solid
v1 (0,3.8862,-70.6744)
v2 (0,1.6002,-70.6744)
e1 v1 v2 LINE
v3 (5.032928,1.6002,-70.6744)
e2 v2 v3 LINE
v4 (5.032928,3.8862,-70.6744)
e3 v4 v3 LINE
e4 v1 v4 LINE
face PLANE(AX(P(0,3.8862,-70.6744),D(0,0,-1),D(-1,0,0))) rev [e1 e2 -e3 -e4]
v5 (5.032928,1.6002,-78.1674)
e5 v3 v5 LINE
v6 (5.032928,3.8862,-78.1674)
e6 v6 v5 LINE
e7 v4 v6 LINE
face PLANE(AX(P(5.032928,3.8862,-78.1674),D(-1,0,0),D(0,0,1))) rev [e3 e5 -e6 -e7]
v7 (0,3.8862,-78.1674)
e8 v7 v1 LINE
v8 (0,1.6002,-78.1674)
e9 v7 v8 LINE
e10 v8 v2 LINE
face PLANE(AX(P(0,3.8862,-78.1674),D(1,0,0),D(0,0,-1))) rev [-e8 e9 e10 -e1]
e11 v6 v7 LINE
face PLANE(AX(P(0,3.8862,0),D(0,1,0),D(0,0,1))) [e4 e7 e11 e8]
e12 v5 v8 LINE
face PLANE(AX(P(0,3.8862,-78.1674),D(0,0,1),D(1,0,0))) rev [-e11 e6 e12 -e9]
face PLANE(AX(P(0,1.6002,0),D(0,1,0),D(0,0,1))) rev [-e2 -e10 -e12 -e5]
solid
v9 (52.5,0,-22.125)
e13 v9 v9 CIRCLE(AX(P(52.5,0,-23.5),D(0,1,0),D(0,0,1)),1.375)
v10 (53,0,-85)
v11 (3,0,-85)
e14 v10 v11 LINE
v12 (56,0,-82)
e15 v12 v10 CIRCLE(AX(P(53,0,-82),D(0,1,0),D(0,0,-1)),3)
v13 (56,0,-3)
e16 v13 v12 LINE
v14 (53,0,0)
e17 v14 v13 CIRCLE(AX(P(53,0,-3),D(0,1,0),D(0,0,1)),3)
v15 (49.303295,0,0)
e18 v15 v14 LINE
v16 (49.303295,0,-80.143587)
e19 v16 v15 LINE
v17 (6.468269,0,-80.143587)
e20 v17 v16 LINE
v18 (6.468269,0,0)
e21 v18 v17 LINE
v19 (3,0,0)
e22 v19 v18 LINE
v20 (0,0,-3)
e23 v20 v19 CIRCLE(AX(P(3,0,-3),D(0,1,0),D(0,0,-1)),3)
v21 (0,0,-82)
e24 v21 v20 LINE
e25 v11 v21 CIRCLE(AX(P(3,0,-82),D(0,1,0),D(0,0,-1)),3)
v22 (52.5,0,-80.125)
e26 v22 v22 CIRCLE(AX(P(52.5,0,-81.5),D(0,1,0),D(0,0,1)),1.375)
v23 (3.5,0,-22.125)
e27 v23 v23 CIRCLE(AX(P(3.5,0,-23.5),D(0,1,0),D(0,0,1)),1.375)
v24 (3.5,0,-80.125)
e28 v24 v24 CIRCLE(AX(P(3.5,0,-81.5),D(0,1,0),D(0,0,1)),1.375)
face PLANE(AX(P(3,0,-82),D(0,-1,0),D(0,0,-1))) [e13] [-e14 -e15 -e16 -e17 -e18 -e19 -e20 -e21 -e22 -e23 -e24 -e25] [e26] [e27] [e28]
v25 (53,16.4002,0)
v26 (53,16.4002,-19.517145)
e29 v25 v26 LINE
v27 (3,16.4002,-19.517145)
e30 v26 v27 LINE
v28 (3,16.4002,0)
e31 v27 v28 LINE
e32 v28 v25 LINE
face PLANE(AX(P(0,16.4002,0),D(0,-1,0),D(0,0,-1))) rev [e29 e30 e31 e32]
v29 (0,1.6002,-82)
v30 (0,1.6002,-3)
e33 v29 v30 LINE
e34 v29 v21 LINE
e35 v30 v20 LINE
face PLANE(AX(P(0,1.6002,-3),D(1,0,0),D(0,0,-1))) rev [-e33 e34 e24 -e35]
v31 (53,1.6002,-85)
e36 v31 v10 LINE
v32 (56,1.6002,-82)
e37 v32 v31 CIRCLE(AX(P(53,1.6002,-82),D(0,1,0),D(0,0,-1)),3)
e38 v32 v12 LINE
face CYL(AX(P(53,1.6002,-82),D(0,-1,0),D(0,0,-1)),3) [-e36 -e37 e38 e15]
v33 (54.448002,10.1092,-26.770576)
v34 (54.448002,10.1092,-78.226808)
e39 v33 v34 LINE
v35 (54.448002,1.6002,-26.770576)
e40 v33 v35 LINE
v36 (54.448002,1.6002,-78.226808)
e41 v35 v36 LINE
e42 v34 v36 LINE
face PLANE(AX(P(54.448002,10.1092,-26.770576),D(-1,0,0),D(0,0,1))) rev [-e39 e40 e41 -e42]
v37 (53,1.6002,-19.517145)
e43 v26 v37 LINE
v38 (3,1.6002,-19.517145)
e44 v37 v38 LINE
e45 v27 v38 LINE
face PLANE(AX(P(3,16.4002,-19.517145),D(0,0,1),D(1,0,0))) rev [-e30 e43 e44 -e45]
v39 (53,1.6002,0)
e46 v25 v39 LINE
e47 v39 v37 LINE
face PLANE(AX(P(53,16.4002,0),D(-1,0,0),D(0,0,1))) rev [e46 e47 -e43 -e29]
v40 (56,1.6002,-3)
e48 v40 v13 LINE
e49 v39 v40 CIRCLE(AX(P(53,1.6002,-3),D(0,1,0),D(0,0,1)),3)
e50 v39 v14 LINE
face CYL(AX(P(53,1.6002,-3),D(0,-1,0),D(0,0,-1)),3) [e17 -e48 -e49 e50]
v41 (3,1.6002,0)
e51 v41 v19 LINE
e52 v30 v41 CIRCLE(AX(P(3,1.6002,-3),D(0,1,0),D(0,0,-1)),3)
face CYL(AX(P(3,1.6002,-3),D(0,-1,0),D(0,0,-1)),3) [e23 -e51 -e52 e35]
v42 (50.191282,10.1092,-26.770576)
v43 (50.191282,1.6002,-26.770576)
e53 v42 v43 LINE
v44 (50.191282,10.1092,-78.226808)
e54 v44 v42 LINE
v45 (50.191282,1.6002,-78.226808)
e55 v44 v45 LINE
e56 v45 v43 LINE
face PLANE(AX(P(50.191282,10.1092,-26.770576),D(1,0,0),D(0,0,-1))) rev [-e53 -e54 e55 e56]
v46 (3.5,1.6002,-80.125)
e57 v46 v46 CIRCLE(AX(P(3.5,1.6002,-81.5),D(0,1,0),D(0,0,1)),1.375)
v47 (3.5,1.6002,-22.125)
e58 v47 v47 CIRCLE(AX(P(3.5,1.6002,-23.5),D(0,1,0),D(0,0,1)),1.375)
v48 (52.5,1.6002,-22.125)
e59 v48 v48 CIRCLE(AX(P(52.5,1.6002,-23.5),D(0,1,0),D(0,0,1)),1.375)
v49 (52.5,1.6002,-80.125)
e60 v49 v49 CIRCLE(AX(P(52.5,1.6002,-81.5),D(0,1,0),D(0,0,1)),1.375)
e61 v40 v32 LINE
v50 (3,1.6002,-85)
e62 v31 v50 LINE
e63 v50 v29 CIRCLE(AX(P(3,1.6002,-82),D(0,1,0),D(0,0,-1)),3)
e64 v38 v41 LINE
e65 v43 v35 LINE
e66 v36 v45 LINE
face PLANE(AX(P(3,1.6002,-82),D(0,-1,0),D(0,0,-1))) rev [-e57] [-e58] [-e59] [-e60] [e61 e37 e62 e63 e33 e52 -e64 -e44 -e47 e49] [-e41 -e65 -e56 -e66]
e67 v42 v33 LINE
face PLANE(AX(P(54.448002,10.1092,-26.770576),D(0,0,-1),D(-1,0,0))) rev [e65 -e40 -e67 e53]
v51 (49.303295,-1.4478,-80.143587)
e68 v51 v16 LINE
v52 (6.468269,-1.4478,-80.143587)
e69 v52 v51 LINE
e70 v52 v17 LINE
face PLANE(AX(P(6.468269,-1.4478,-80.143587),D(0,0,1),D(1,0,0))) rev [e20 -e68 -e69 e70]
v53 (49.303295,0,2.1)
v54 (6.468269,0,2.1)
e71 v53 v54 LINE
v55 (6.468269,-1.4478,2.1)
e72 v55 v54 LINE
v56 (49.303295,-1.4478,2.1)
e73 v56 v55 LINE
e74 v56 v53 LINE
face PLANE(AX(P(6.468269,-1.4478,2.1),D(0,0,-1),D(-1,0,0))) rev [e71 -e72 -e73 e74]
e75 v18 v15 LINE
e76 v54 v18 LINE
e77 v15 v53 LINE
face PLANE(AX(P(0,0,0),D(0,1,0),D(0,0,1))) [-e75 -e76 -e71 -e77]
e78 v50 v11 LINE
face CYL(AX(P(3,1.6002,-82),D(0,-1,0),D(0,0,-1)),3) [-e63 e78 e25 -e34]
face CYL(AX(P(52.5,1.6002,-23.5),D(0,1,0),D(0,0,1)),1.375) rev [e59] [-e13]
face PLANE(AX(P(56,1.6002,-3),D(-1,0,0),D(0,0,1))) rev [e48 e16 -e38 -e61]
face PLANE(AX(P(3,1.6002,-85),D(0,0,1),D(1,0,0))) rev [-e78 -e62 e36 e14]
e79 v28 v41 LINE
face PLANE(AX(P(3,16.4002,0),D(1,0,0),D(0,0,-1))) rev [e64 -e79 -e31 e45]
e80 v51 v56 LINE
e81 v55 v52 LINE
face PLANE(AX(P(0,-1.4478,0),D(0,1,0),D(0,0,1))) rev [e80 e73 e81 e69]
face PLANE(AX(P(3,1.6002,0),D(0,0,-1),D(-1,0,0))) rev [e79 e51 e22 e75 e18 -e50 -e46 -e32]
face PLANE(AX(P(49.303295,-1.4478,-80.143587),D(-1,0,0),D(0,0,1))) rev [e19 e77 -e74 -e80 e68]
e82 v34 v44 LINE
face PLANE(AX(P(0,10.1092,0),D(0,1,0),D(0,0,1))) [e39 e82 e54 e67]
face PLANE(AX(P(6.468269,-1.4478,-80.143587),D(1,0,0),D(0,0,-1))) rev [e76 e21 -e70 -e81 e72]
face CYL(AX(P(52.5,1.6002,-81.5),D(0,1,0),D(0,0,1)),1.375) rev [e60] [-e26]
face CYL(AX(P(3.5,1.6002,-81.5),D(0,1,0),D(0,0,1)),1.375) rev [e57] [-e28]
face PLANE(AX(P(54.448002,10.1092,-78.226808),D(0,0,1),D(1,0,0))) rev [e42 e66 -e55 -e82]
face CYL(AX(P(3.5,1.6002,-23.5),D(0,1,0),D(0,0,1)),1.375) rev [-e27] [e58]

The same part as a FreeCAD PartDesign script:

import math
import FreeCAD as App
import Part
import Sketcher
from FreeCAD import Vector
Q = App.Units.Quantity

doc = App.newDocument("Part")
body = doc.addObject("PartDesign::Body", "Body")

# Sketch on XZ plane
sketch1 = body.newObject("Sketcher::SketchObject", "Sketch")
sketch1.AttachmentSupport = (doc.getObject("XZ_Plane"), [""])
sketch1.MapMode = "FlatFace"
sketch1.addGeometry(Part.LineSegment(Vector(3, 0, 0), Vector(53, 0, 0)), False)
sketch1.addGeometry(Part.ArcOfCircle(Part.Circle(Vector(53, -3, 0), Vector(0, 0, 1), 3), math.radians(0), math.radians(90)), False)
sketch1.addGeometry(Part.LineSegment(Vector(56, -3, 0), Vector(56, -82, 0)), False)
sketch1.addGeometry(Part.ArcOfCircle(Part.Circle(Vector(53, -82, 0), Vector(0, 0, 1), 3), math.radians(-90), math.radians(0)), False)
sketch1.addGeometry(Part.LineSegment(Vector(53, -85, 0), Vector(3, -85, 0)), False)
sketch1.addGeometry(Part.ArcOfCircle(Part.Circle(Vector(3, -82, 0), Vector(0, 0, 1), 3), math.radians(180), math.radians(270)), False)
sketch1.addGeometry(Part.LineSegment(Vector(0, -82, 0), Vector(0, -3, 0)), False)
sketch1.addGeometry(Part.ArcOfCircle(Part.Circle(Vector(3, -3, 0), Vector(0, 0, 1), 3), math.radians(90), math.radians(180)), False)
sketch1.addConstraint(Sketcher.Constraint("Tangent", 0, 2, 1, 2))
sketch1.addConstraint(Sketcher.Constraint("Tangent", 1, 1, 2, 1))
sketch1.addConstraint(Sketcher.Constraint("Tangent", 2, 2, 3, 2))
sketch1.addConstraint(Sketcher.Constraint("Tangent", 3, 1, 4, 1))
sketch1.addConstraint(Sketcher.Constraint("Tangent", 4, 2, 5, 2))
sketch1.addConstraint(Sketcher.Constraint("Tangent", 5, 1, 6, 1))
sketch1.addConstraint(Sketcher.Constraint("Tangent", 6, 2, 7, 2))
sketch1.addConstraint(Sketcher.Constraint("Tangent", 7, 1, 0, 1))
sketch1.addConstraint(Sketcher.Constraint("Horizontal", 0))
sketch1.addConstraint(Sketcher.Constraint("Vertical", 2))
sketch1.addConstraint(Sketcher.Constraint("Horizontal", 4))
sketch1.addConstraint(Sketcher.Constraint("Vertical", 6))
sketch1.addConstraint(Sketcher.Constraint("Equal", 1, 3))
sketch1.addConstraint(Sketcher.Constraint("Equal", 3, 5))
sketch1.addConstraint(Sketcher.Constraint("Equal", 5, 7))
sketch1.addConstraint(Sketcher.Constraint("PointOnObject", 0, 2, -1))
sketch1.addConstraint(Sketcher.Constraint("PointOnObject", 5, 1, -2))
sketch1.addConstraint(Sketcher.Constraint("Radius", 1, Q("3 mm")))
sketch1.addConstraint(Sketcher.Constraint("DistanceX", 0, 1, 0, 2, Q("50 mm")))
sketch1.addConstraint(Sketcher.Constraint("DistanceY", 2, 2, 2, 1, Q("79 mm")))
pad1 = body.newObject("PartDesign::Pad", "Pad")
pad1.Profile = sketch1
pad1.Length = Q("0.063 in")
pad1.Reversed = True

# Sketch on XZ plane
sketch2 = body.newObject("Sketcher::SketchObject", "Sketch001")
sketch2.AttachmentSupport = (doc.getObject("XZ_Plane"), [""])
sketch2.MapMode = "FlatFace"
sketch2.AttachmentOffset = App.Placement(Vector(0, 0, -0.063 * 25.4), App.Rotation())
sketch2.addGeometry(Part.Circle(Vector(3.5, -81.5, 0), Vector(0, 0, 1), 1.4), False)
sketch2.addGeometry(Part.Circle(Vector(3.5, -23.5, 0), Vector(0, 0, 1), 1.4), False)
sketch2.addGeometry(Part.Circle(Vector(52.5, -81.5, 0), Vector(0, 0, 1), 1.4), False)
sketch2.addGeometry(Part.Circle(Vector(52.5, -23.5, 0), Vector(0, 0, 1), 1.4), False)
sketch2.addConstraint(Sketcher.Constraint("Equal", 0, 1))
sketch2.addConstraint(Sketcher.Constraint("Equal", 1, 2))
sketch2.addConstraint(Sketcher.Constraint("Equal", 2, 3))
sketch2.addConstraint(Sketcher.Constraint("Horizontal", 0, 3, 2, 3))
sketch2.addConstraint(Sketcher.Constraint("Horizontal", 1, 3, 3, 3))
sketch2.addConstraint(Sketcher.Constraint("Vertical", 0, 3, 1, 3))
sketch2.addConstraint(Sketcher.Constraint("Vertical", 2, 3, 3, 3))
sketch2.addConstraint(Sketcher.Constraint("Diameter", 0, Q("2.75 mm")))
sketch2.addConstraint(Sketcher.Constraint("DistanceX", -1, 1, 0, 3, Q("3.5 mm")))
sketch2.addConstraint(Sketcher.Constraint("DistanceY", 0, 3, -1, 1, Q("81.5 mm")))
sketch2.addConstraint(Sketcher.Constraint("DistanceY", 1, 3, -1, 1, Q("23.5 mm")))
sketch2.addConstraint(Sketcher.Constraint("DistanceX", -1, 1, 2, 3, Q("52.5 mm")))
doc.recompute()
hole = body.newObject("PartDesign::Hole", "Hole")
hole.Profile = sketch2
hole.ThreadType = "None"
hole.Diameter = 2.75
hole.DepthType = "ThroughAll"
hole.Reversed = True

# Sketch on XZ plane
sketch3 = body.newObject("Sketcher::SketchObject", "Sketch002")
sketch3.AttachmentSupport = (doc.getObject("XZ_Plane"), [""])
sketch3.MapMode = "FlatFace"
sketch3.AttachmentOffset = App.Placement(Vector(0, 0, -0.063 * 25.4), App.Rotation())
sketch3.addGeometry(Part.LineSegment(Vector(3, -20, 0), Vector(3, 0, 0)), False)
sketch3.addGeometry(Part.LineSegment(Vector(3, 0, 0), Vector(53, 0, 0)), False)
sketch3.addGeometry(Part.LineSegment(Vector(53, 0, 0), Vector(53, -20, 0)), False)
sketch3.addGeometry(Part.LineSegment(Vector(53, -20, 0), Vector(3, -20, 0)), False)
sketch3.addConstraint(Sketcher.Constraint("Coincident", 0, 2, 1, 1))
sketch3.addConstraint(Sketcher.Constraint("Coincident", 1, 2, 2, 1))
sketch3.addConstraint(Sketcher.Constraint("Coincident", 2, 2, 3, 1))
sketch3.addConstraint(Sketcher.Constraint("Coincident", 3, 2, 0, 1))
sketch3.addConstraint(Sketcher.Constraint("Vertical", 0))
sketch3.addConstraint(Sketcher.Constraint("Horizontal", 1))
sketch3.addConstraint(Sketcher.Constraint("Vertical", 2))
sketch3.addConstraint(Sketcher.Constraint("Horizontal", 3))
sketch3.addConstraint(Sketcher.Constraint("PointOnObject", 0, 2, -1))
sketch3.addConstraint(Sketcher.Constraint("DistanceX", 1, 1, 1, 2, Q("50 mm")))
sketch3.addConstraint(Sketcher.Constraint("DistanceX", -1, 1, 0, 2, Q("3 mm")))
sketch3.addConstraint(Sketcher.Constraint("DistanceY", 0, 1, 0, 2, Q("19.517145 mm")))
pad2 = body.newObject("PartDesign::Pad", "Pad001")
pad2.Profile = sketch3
pad2.Length = 14.8
pad2.Reversed = True

# Sketch on XZ plane
sketch4 = body.newObject("Sketcher::SketchObject", "Sketch003")
sketch4.AttachmentSupport = (doc.getObject("XZ_Plane"), [""])
sketch4.MapMode = "FlatFace"
sketch4.addGeometry(Part.LineSegment(Vector(6, 2, 0), Vector(6, -80, 0)), False)
sketch4.addGeometry(Part.LineSegment(Vector(6, -80, 0), Vector(49, -80, 0)), False)
sketch4.addGeometry(Part.LineSegment(Vector(49, -80, 0), Vector(49, 2, 0)), False)
sketch4.addGeometry(Part.LineSegment(Vector(49, 2, 0), Vector(6, 2, 0)), False)
sketch4.addConstraint(Sketcher.Constraint("Coincident", 0, 2, 1, 1))
sketch4.addConstraint(Sketcher.Constraint("Coincident", 1, 2, 2, 1))
sketch4.addConstraint(Sketcher.Constraint("Coincident", 2, 2, 3, 1))
sketch4.addConstraint(Sketcher.Constraint("Coincident", 3, 2, 0, 1))
sketch4.addConstraint(Sketcher.Constraint("Vertical", 0))
sketch4.addConstraint(Sketcher.Constraint("Horizontal", 1))
sketch4.addConstraint(Sketcher.Constraint("Vertical", 2))
sketch4.addConstraint(Sketcher.Constraint("Horizontal", 3))
sketch4.addConstraint(Sketcher.Constraint("DistanceY", -1, 1, 2, 2, Q("2.1 mm")))
sketch4.addConstraint(Sketcher.Constraint("DistanceX", 1, 1, 1, 2, Q("42.835026 mm")))
sketch4.addConstraint(Sketcher.Constraint("DistanceY", 0, 2, 0, 1, Q("82.243587 mm")))
sketch4.addConstraint(Sketcher.Constraint("DistanceX", -1, 1, 0, 2, Q("6.468269 mm")))
pad3 = body.newObject("PartDesign::Pad", "Pad002")
pad3.Profile = sketch4
pad3.Length = Q("0.057 in")

# Sketch on XZ plane
sketch5 = body.newObject("Sketcher::SketchObject", "Sketch004")
sketch5.AttachmentSupport = (doc.getObject("XZ_Plane"), [""])
sketch5.MapMode = "FlatFace"
sketch5.AttachmentOffset = App.Placement(Vector(0, 0, -0.063 * 25.4), App.Rotation())
sketch5.addGeometry(Part.LineSegment(Vector(50.2, -78.2, 0), Vector(50.2, -26.8, 0)), False)
sketch5.addGeometry(Part.LineSegment(Vector(50.2, -26.8, 0), Vector(54.4, -26.8, 0)), False)
sketch5.addGeometry(Part.LineSegment(Vector(54.4, -26.8, 0), Vector(54.4, -78.2, 0)), False)
sketch5.addGeometry(Part.LineSegment(Vector(54.4, -78.2, 0), Vector(50.2, -78.2, 0)), False)
sketch5.addConstraint(Sketcher.Constraint("Coincident", 0, 2, 1, 1))
sketch5.addConstraint(Sketcher.Constraint("Coincident", 1, 2, 2, 1))
sketch5.addConstraint(Sketcher.Constraint("Coincident", 2, 2, 3, 1))
sketch5.addConstraint(Sketcher.Constraint("Coincident", 3, 2, 0, 1))
sketch5.addConstraint(Sketcher.Constraint("Vertical", 0))
sketch5.addConstraint(Sketcher.Constraint("Horizontal", 1))
sketch5.addConstraint(Sketcher.Constraint("Vertical", 2))
sketch5.addConstraint(Sketcher.Constraint("Horizontal", 3))
sketch5.addConstraint(Sketcher.Constraint("DistanceX", 1, 1, 1, 2, Q("4.25672 mm")))
sketch5.addConstraint(Sketcher.Constraint("DistanceY", 0, 1, 0, 2, Q("51.456231 mm")))
sketch5.addConstraint(Sketcher.Constraint("DistanceX", -1, 1, 0, 2, Q("50.191282 mm")))
sketch5.addConstraint(Sketcher.Constraint("DistanceY", 0, 2, -1, 1, Q("26.770576 mm")))
pad4 = body.newObject("PartDesign::Pad", "Pad003")
pad4.Profile = sketch5
pad4.Length = Q("0.335 in")
pad4.Reversed = True
body2 = doc.addObject("PartDesign::Body", "Body001")

# Sketch on XZ plane
sketch6 = body2.newObject("Sketcher::SketchObject", "Sketch005")
sketch6.AttachmentSupport = (doc.getObject("XZ_Plane001"), [""])
sketch6.MapMode = "FlatFace"
sketch6.AttachmentOffset = App.Placement(Vector(0, 0, -0.063 * 25.4), App.Rotation())
sketch6.addGeometry(Part.LineSegment(Vector(0, -78, 0), Vector(0, -71, 0)), False)
sketch6.addGeometry(Part.LineSegment(Vector(0, -71, 0), Vector(5, -71, 0)), False)
sketch6.addGeometry(Part.LineSegment(Vector(5, -71, 0), Vector(5, -78, 0)), False)
sketch6.addGeometry(Part.LineSegment(Vector(5, -78, 0), Vector(0, -78, 0)), False)
sketch6.addConstraint(Sketcher.Constraint("Coincident", 0, 2, 1, 1))
sketch6.addConstraint(Sketcher.Constraint("Coincident", 1, 2, 2, 1))
sketch6.addConstraint(Sketcher.Constraint("Coincident", 2, 2, 3, 1))
sketch6.addConstraint(Sketcher.Constraint("Coincident", 3, 2, 0, 1))
sketch6.addConstraint(Sketcher.Constraint("Vertical", 0))
sketch6.addConstraint(Sketcher.Constraint("Horizontal", 1))
sketch6.addConstraint(Sketcher.Constraint("Vertical", 2))
sketch6.addConstraint(Sketcher.Constraint("Horizontal", 3))
sketch6.addConstraint(Sketcher.Constraint("PointOnObject", 0, 2, -2))
sketch6.addConstraint(Sketcher.Constraint("DistanceY", 0, 1, 0, 2, Q("0.295 in")))
sketch6.addConstraint(Sketcher.Constraint("DistanceY", 0, 2, -1, 1, Q("70.6744 mm")))
sketch6.addConstraint(Sketcher.Constraint("DistanceX", 1, 1, 1, 2, Q("5.032928 mm")))
pad5 = body2.newObject("PartDesign::Pad", "Pad004")
pad5.Profile = sketch6
pad5.Length = Q("0.09 in")
pad5.Reversed = True

doc.recompute()
